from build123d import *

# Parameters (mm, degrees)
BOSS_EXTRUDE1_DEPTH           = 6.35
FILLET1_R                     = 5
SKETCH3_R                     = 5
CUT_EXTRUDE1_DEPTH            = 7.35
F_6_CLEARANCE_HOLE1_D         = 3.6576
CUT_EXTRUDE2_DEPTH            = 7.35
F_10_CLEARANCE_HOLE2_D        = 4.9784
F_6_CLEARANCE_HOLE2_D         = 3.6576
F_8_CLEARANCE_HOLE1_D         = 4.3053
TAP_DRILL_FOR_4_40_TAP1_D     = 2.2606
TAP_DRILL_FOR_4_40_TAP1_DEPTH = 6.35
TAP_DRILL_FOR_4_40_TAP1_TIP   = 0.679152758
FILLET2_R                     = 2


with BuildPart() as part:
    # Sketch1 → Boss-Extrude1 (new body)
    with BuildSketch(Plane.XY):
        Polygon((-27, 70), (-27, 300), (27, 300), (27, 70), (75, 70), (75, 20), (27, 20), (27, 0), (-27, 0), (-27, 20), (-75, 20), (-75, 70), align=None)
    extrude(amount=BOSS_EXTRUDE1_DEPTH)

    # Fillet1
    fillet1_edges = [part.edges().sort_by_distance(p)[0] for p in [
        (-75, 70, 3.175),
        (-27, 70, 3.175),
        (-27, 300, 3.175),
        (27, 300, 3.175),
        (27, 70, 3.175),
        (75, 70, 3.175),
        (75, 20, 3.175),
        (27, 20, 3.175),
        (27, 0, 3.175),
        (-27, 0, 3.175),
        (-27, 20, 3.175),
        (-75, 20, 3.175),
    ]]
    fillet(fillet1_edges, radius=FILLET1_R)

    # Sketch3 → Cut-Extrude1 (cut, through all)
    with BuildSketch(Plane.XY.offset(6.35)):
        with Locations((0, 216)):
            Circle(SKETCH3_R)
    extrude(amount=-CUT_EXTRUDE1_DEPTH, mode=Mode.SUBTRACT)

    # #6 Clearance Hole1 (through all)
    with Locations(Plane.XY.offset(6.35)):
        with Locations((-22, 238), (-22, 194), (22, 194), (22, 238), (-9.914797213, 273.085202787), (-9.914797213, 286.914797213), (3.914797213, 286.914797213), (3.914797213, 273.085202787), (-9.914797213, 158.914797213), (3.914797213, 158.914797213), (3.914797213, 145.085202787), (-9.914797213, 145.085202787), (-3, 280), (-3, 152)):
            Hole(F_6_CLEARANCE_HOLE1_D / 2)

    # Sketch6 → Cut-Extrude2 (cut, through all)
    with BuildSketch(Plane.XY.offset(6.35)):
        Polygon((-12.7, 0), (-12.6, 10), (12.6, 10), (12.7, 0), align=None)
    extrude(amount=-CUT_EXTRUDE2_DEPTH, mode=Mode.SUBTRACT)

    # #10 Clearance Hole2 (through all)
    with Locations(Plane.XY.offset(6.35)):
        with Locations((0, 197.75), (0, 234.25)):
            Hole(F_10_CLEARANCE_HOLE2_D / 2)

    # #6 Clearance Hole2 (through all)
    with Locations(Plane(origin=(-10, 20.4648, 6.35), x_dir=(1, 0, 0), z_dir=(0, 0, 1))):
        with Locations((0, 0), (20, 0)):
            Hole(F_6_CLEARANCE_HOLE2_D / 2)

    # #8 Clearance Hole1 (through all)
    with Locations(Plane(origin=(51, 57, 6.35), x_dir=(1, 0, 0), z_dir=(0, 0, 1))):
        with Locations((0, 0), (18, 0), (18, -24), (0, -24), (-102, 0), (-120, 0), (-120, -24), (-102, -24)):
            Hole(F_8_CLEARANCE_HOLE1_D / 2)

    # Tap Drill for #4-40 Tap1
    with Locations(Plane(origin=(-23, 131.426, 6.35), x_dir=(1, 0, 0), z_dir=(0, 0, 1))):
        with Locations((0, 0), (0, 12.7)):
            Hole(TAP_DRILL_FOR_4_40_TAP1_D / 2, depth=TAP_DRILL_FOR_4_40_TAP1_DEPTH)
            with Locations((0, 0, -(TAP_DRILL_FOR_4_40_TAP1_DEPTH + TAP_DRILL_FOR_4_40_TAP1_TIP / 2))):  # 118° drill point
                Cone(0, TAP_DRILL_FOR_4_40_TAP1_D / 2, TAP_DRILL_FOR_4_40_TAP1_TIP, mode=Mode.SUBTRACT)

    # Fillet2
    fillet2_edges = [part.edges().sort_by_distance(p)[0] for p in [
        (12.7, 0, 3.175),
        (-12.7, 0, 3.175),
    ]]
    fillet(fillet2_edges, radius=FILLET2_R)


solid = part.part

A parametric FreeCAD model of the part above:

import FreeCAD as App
import Part
import Sketcher

V = App.Vector


def edges_at(feature, points):
    """Names of the edges that pass closest to the given points."""
    edges = feature.Shape.Edges
    near = lambda p: min(range(len(edges)), key=lambda i: edges[i].distToShape(Part.Vertex(*p))[0])
    return sorted({f"Edge{near(p) + 1}" for p in points})


def add_polygon(sketch, points):
    """Adds a closed chain of lines whose ends are joined by coincident constraints."""
    first, n = sketch.GeometryCount, len(points)
    for a, b in zip(points, points[1:] + points[:1]):
        sketch.addGeometry(Part.LineSegment(App.Vector(*a, 0), App.Vector(*b, 0)), False)
    for i in range(n):
        sketch.addConstraint(Sketcher.Constraint("Coincident", first + i, 2, first + (i + 1) % n, 1))

doc = App.newDocument("Part")
body = doc.addObject("PartDesign::Body", "Body")

sketch1 = doc.addObject("Sketcher::SketchObject", "Sketch")
body.addObject(sketch1)
sketch1.AttachmentSupport = (doc.XY_Plane, [""])
sketch1.MapMode = "FlatFace"
add_polygon(sketch1, [(-27, 300), (-27, 70), (-75, 70), (-75, 20), (-27, 20), (-27, 0), (27, 0), (27, 20), (75, 20), (75, 70), (27, 70), (27, 300)])
sketch1.addConstraint(Sketcher.Constraint("Vertical", 0))
sketch1.addConstraint(Sketcher.Constraint("Horizontal", 1))
sketch1.addConstraint(Sketcher.Constraint("Vertical", 2))
sketch1.addConstraint(Sketcher.Constraint("Horizontal", 3))
sketch1.addConstraint(Sketcher.Constraint("Vertical", 4))
sketch1.addConstraint(Sketcher.Constraint("Horizontal", 5))
sketch1.addConstraint(Sketcher.Constraint("Vertical", 6))
sketch1.addConstraint(Sketcher.Constraint("Horizontal", 7))
sketch1.addConstraint(Sketcher.Constraint("Vertical", 8))
sketch1.addConstraint(Sketcher.Constraint("Horizontal", 9))
sketch1.addConstraint(Sketcher.Constraint("Vertical", 10))
sketch1.addConstraint(Sketcher.Constraint("Horizontal", 11))
sketch1.addConstraint(Sketcher.Constraint("Symmetric", 4, 2, 5, 2, -1, 1))
sketch1.addConstraint(Sketcher.Constraint("Symmetric", 2, 2, 7, 2, -2))
sketch1.addConstraint(Sketcher.Constraint("Symmetric", 0, 2, 9, 2, -2))
sketch1.addConstraint(Sketcher.Constraint("Vertical", 0, 2, 3, 2))
sketch1.addConstraint(Sketcher.Constraint("DistanceX", 1, 2, 1, 1, 48.0))
sketch1.addConstraint(Sketcher.Constraint("DistanceX", 5, 1, 5, 2, 54.0))
sketch1.addConstraint(Sketcher.Constraint("DistanceY", 0, 2, 0, 1, 230.0))
sketch1.addConstraint(Sketcher.Constraint("DistanceY", 2, 2, 2, 1, 50.0))
sketch1.addConstraint(Sketcher.Constraint("DistanceY", 4, 2, 4, 1, 20.0))
pad1 = doc.addObject("PartDesign::Pad", "Pad")
body.addObject(pad1)
pad1.Profile = sketch1
pad1.Length = 6.35
doc.recompute()

fillet = doc.addObject("PartDesign::Fillet", "Fillet")
body.addObject(fillet)
fillet.Base = (pad1, edges_at(pad1, [
    (-75, 70, 3.175),
    (-27, 70, 3.175),
    (-27, 300, 3.175),
    (27, 300, 3.175),
    (27, 70, 3.175),
    (75, 70, 3.175),
    (75, 20, 3.175),
    (27, 20, 3.175),
    (27, 0, 3.175),
    (-27, 0, 3.175),
    (-27, 20, 3.175),
    (-75, 20, 3.175),
]))
fillet.Radius = 5

sketch2 = doc.addObject("Sketcher::SketchObject", "Sketch001")
body.addObject(sketch2)
sketch2.AttachmentSupport = (doc.XY_Plane, [""])
sketch2.MapMode = "FlatFace"
sketch2.AttachmentOffset = App.Placement(V(0, 0, 6.35), App.Rotation())
sketch2.addGeometry(Part.Circle(V(0, 216, 0), V(0, 0, 1), 5), False)
sketch2.addConstraint(Sketcher.Constraint("PointOnObject", 0, 3, -2))
sketch2.addConstraint(Sketcher.Constraint("Diameter", 0, 10.0))
sketch2.addConstraint(Sketcher.Constraint("DistanceY", -1, 1, 0, 3, 216.0))
pocket1 = doc.addObject("PartDesign::Pocket", "Pocket")
body.addObject(pocket1)
pocket1.Profile = sketch2
pocket1.Type = "ThroughAll"

sketch3 = doc.addObject("Sketcher::SketchObject", "Sketch002")
body.addObject(sketch3)
sketch3.AttachmentSupport = (doc.XY_Plane, [""])
sketch3.MapMode = "FlatFace"
sketch3.AttachmentOffset = App.Placement(V(0, 0, 6.35), App.Rotation())
sketch3.addGeometry(Part.Circle(V(-22, 238, 0), V(0, 0, 1), 1.8), False)
sketch3.addGeometry(Part.Circle(V(-22, 194, 0), V(0, 0, 1), 1.8), False)
sketch3.addGeometry(Part.Circle(V(22, 194, 0), V(0, 0, 1), 1.8), False)
sketch3.addGeometry(Part.Circle(V(22, 238, 0), V(0, 0, 1), 1.8), False)
sketch3.addGeometry(Part.Circle(V(-9.9, 273.1, 0), V(0, 0, 1), 1.8), False)
sketch3.addGeometry(Part.Circle(V(-9.9, 286.9, 0), V(0, 0, 1), 1.8), False)
sketch3.addGeometry(Part.Circle(V(3.9, 286.9, 0), V(0, 0, 1), 1.8), False)
sketch3.addGeometry(Part.Circle(V(3.9, 273.1, 0), V(0, 0, 1), 1.8), False)
sketch3.addGeometry(Part.Circle(V(-9.9, 158.9, 0), V(0, 0, 1), 1.8), False)
sketch3.addGeometry(Part.Circle(V(3.9, 158.9, 0), V(0, 0, 1), 1.8), False)
sketch3.addGeometry(Part.Circle(V(3.9, 145.1, 0), V(0, 0, 1), 1.8), False)
sketch3.addGeometry(Part.Circle(V(-9.9, 145.1, 0), V(0, 0, 1), 1.8), False)
sketch3.addGeometry(Part.Circle(V(-3, 280, 0), V(0, 0, 1), 1.8), False)
sketch3.addGeometry(Part.Circle(V(-3, 152, 0), V(0, 0, 1), 1.8), False)
sketch3.addConstraint(Sketcher.Constraint("Equal", 0, 1))
sketch3.addConstraint(Sketcher.Constraint("Equal", 1, 2))
sketch3.addConstraint(Sketcher.Constraint("Equal", 2, 3))
sketch3.addConstraint(Sketcher.Constraint("Equal", 3, 4))
sketch3.addConstraint(Sketcher.Constraint("Equal", 4, 5))
sketch3.addConstraint(Sketcher.Constraint("Equal", 5, 6))
sketch3.addConstraint(Sketcher.Constraint("Equal", 6, 7))
sketch3.addConstraint(Sketcher.Constraint("Equal", 7, 8))
sketch3.addConstraint(Sketcher.Constraint("Equal", 8, 9))
sketch3.addConstraint(Sketcher.Constraint("Equal", 9, 10))
sketch3.addConstraint(Sketcher.Constraint("Equal", 10, 11))
sketch3.addConstraint(Sketcher.Constraint("Equal", 11, 12))
sketch3.addConstraint(Sketcher.Constraint("Equal", 12, 13))
sketch3.addConstraint(Sketcher.Constraint("Symmetric", 1, 3, 2, 3, -2))
sketch3.addConstraint(Sketcher.Constraint("Symmetric", 0, 3, 3, 3, -2))
sketch3.addConstraint(Sketcher.Constraint("Horizontal", 5, 3, 6, 3))
sketch3.addConstraint(Sketcher.Constraint("Horizontal", 4, 3, 7, 3))
sketch3.addConstraint(Sketcher.Constraint("Horizontal", 8, 3, 9, 3))
sketch3.addConstraint(Sketcher.Constraint("Horizontal", 10, 3, 11, 3))
sketch3.addConstraint(Sketcher.Constraint("Vertical", 0, 3, 1, 3))
sketch3.addConstraint(Sketcher.Constraint("Vertical", 4, 3, 5, 3))
sketch3.addConstraint(Sketcher.Constraint("Vertical", 6, 3, 7, 3))
sketch3.addConstraint(Sketcher.Constraint("Vertical", 5, 3, 8, 3))
sketch3.addConstraint(Sketcher.Constraint("Vertical", 7, 3, 9, 3))
sketch3.addConstraint(Sketcher.Constraint("Vertical", 9, 3, 10, 3))
sketch3.addConstraint(Sketcher.Constraint("Vertical", 8, 3, 11, 3))
sketch3.addConstraint(Sketcher.Constraint("Vertical", 12, 3, 13, 3))
sketch3.addConstraint(Sketcher.Constraint("DistanceX", 0, 3, -1, 1, 22.0))
sketch3.addConstraint(Sketcher.Constraint("DistanceY", -1, 1, 0, 3, 238.0))
sketch3.addConstraint(Sketcher.Constraint("DistanceY", -1, 1, 1, 3, 194.0))
sketch3.addConstraint(Sketcher.Constraint("DistanceX", 12, 3, -1, 1, 3.0))
sketch3.addConstraint(Sketcher.Constraint("DistanceY", -1, 1, 12, 3, 280.0))
sketch3.addConstraint(Sketcher.Constraint("DistanceY", -1, 1, 13, 3, 152.0))
sketch3.addConstraint(Sketcher.Constraint("Diameter", 0, 3.6576))
sketch3.addConstraint(Sketcher.Constraint("DistanceX", 4, 3, -1, 1, 9.914797))
sketch3.addConstraint(Sketcher.Constraint("DistanceY", -1, 1, 4, 3, 273.085203))
sketch3.addConstraint(Sketcher.Constraint("DistanceY", -1, 1, 5, 3, 286.914797))
sketch3.addConstraint(Sketcher.Constraint("DistanceX", -1, 1, 6, 3, 3.914797))
sketch3.addConstraint(Sketcher.Constraint("DistanceY", -1, 1, 8, 3, 158.914797))
sketch3.addConstraint(Sketcher.Constraint("DistanceY", -1, 1, 10, 3, 145.085203))
doc.recompute()
hole = doc.addObject("PartDesign::Hole", "Hole")
body.addObject(hole)
hole.Profile = sketch3
hole.ThreadType = "None"
hole.Diameter = 3.6576
hole.DepthType = "ThroughAll"

sketch4 = doc.addObject("Sketcher::SketchObject", "Sketch003")
body.addObject(sketch4)
sketch4.AttachmentSupport = (doc.XY_Plane, [""])
sketch4.MapMode = "FlatFace"
sketch4.AttachmentOffset = App.Placement(V(0, 0, 6.35), App.Rotation())
add_polygon(sketch4, [(-13, 10), (-13, 0), (13, 0), (13, 10)])
sketch4.addConstraint(Sketcher.Constraint("Horizontal", 1))
sketch4.addConstraint(Sketcher.Constraint("Horizontal", 3))
sketch4.addConstraint(Sketcher.Constraint("Symmetric", 0, 2, 1, 2, -1, 1))
sketch4.addConstraint(Sketcher.Constraint("Equal", 0, 2))
sketch4.addConstraint(Sketcher.Constraint("DistanceX", 1, 1, 1, 2, 25.4))
sketch4.addConstraint(Sketcher.Constraint("DistanceX", 3, 2, 3, 1, 25.2))
sketch4.addConstraint(Sketcher.Constraint("DistanceY", -1, 1, 2, 2, 10.0))
pocket2 = doc.addObject("PartDesign::Pocket", "Pocket001")
body.addObject(pocket2)
pocket2.Profile = sketch4
pocket2.Type = "ThroughAll"

sketch5 = doc.addObject("Sketcher::SketchObject", "Sketch004")
body.addObject(sketch5)
sketch5.AttachmentSupport = (doc.XY_Plane, [""])
sketch5.MapMode = "FlatFace"
sketch5.AttachmentOffset = App.Placement(V(0, 0, 6.35), App.Rotation())
sketch5.addGeometry(Part.Circle(V(0, 197.8, 0), V(0, 0, 1), 2.5), False)
sketch5.addGeometry(Part.Circle(V(0, 234.2, 0), V(0, 0, 1), 2.5), False)
sketch5.addConstraint(Sketcher.Constraint("Equal", 0, 1))
sketch5.addConstraint(Sketcher.Constraint("PointOnObject", 0, 3, -2))
sketch5.addConstraint(Sketcher.Constraint("PointOnObject", 1, 3, -2))
sketch5.addConstraint(Sketcher.Constraint("Diameter", 0, 4.9784))
sketch5.addConstraint(Sketcher.Constraint("DistanceY", 0, 3, 1, 3, 36.5))
sketch5.addConstraint(Sketcher.Constraint("DistanceY", -1, 1, 0, 3, 197.75))
doc.recompute()
hole2 = doc.addObject("PartDesign::Hole", "Hole001")
body.addObject(hole2)
hole2.Profile = sketch5
hole2.ThreadType = "None"
hole2.Diameter = 4.9784
hole2.DepthType = "ThroughAll"

sketch6 = doc.addObject("Sketcher::SketchObject", "Sketch005")
body.addObject(sketch6)
sketch6.AttachmentSupport = (doc.XY_Plane, [""])
sketch6.MapMode = "FlatFace"
sketch6.AttachmentOffset = App.Placement(V(0, 0, 6.35), App.Rotation())
sketch6.addGeometry(Part.Circle(V(-10, 20.5, 0), V(0, 0, 1), 1.8), False)
sketch6.addGeometry(Part.Circle(V(10, 20.5, 0), V(0, 0, 1), 1.8), False)
sketch6.addConstraint(Sketcher.Constraint("Equal", 0, 1))
sketch6.addConstraint(Sketcher.Constraint("Symmetric", 0, 3, 1, 3, -2))
sketch6.addConstraint(Sketcher.Constraint("DistanceX", 0, 3, -1, 1, 10.0))
sketch6.addConstraint(Sketcher.Constraint("Diameter", 0, 3.6576))
sketch6.addConstraint(Sketcher.Constraint("DistanceY", -1, 1, 0, 3, 20.4648))
doc.recompute()
hole3 = doc.addObject("PartDesign::Hole", "Hole002")
body.addObject(hole3)
hole3.Profile = sketch6
hole3.ThreadType = "None"
hole3.Diameter = 3.6576
hole3.DepthType = "ThroughAll"

sketch7 = doc.addObject("Sketcher::SketchObject", "Sketch006")
body.addObject(sketch7)
sketch7.AttachmentSupport = (doc.XY_Plane, [""])
sketch7.MapMode = "FlatFace"
sketch7.AttachmentOffset = App.Placement(V(0, 0, 6.35), App.Rotation())
sketch7.addGeometry(Part.Circle(V(51, 57, 0), V(0, 0, 1), 2.2), False)
sketch7.addGeometry(Part.Circle(V(69, 57, 0), V(0, 0, 1), 2.2), False)
sketch7.addGeometry(Part.Circle(V(69, 33, 0), V(0, 0, 1), 2.2), False)
sketch7.addGeometry(Part.Circle(V(51, 33, 0), V(0, 0, 1), 2.2), False)
sketch7.addGeometry(Part.Circle(V(-51, 57, 0), V(0, 0, 1), 2.2), False)
sketch7.addGeometry(Part.Circle(V(-69, 57, 0), V(0, 0, 1), 2.2), False)
sketch7.addGeometry(Part.Circle(V(-69, 33, 0), V(0, 0, 1), 2.2), False)
sketch7.addGeometry(Part.Circle(V(-51, 33, 0), V(0, 0, 1), 2.2), False)
sketch7.addConstraint(Sketcher.Constraint("Equal", 0, 1))
sketch7.addConstraint(Sketcher.Constraint("Equal", 1, 2))
sketch7.addConstraint(Sketcher.Constraint("Equal", 2, 3))
sketch7.addConstraint(Sketcher.Constraint("Equal", 3, 4))
sketch7.addConstraint(Sketcher.Constraint("Equal", 4, 5))
sketch7.addConstraint(Sketcher.Constraint("Equal", 5, 6))
sketch7.addConstraint(Sketcher.Constraint("Equal", 6, 7))
sketch7.addConstraint(Sketcher.Constraint("Symmetric", 0, 3, 4, 3, -2))
sketch7.addConstraint(Sketcher.Constraint("Symmetric", 1, 3, 5, 3, -2))
sketch7.addConstraint(Sketcher.Constraint("Symmetric", 2, 3, 6, 3, -2))
sketch7.addConstraint(Sketcher.Constraint("Symmetric", 3, 3, 7, 3, -2))
sketch7.addConstraint(Sketcher.Constraint("Horizontal", 0, 3, 1, 3))
sketch7.addConstraint(Sketcher.Constraint("Horizontal", 2, 3, 3, 3))
sketch7.addConstraint(Sketcher.Constraint("Vertical", 1, 3, 2, 3))
sketch7.addConstraint(Sketcher.Constraint("Vertical", 0, 3, 3, 3))
sketch7.addConstraint(Sketcher.Constraint("DistanceX", -1, 1, 0, 3, 51.0))
sketch7.addConstraint(Sketcher.Constraint("DistanceY", -1, 1, 0, 3, 57.0))
sketch7.addConstraint(Sketcher.Constraint("DistanceX", -1, 1, 1, 3, 69.0))
sketch7.addConstraint(Sketcher.Constraint("DistanceY", -1, 1, 2, 3, 33.0))
sketch7.addConstraint(Sketcher.Constraint("Diameter", 0, 4.3053))
doc.recompute()
hole4 = doc.addObject("PartDesign::Hole", "Hole003")
body.addObject(hole4)
hole4.Profile = sketch7
hole4.ThreadType = "None"
hole4.Diameter = 4.3053
hole4.DepthType = "ThroughAll"

sketch8 = doc.addObject("Sketcher::SketchObject", "Sketch007")
body.addObject(sketch8)
sketch8.AttachmentSupport = (doc.XY_Plane, [""])
sketch8.MapMode = "FlatFace"
sketch8.AttachmentOffset = App.Placement(V(0, 0, 6.35), App.Rotation())
sketch8.addGeometry(Part.Circle(V(-23, 131.4, 0), V(0, 0, 1), 1.1), False)
sketch8.addGeometry(Part.Circle(V(-23, 144.1, 0), V(0, 0, 1), 1.1), False)
sketch8.addConstraint(Sketcher.Constraint("Equal", 0, 1))
sketch8.addConstraint(Sketcher.Constraint("Vertical", 0, 3, 1, 3))
sketch8.addConstraint(Sketcher.Constraint("DistanceX", 0, 3, -1, 1, 23.0))
sketch8.addConstraint(Sketcher.Constraint("Diameter", 0, 2.2606))
sketch8.addConstraint(Sketcher.Constraint("DistanceY", 0, 3, 1, 3, 12.7))
sketch8.addConstraint(Sketcher.Constraint("DistanceY", -1, 1, 0, 3, 131.426))
doc.recompute()
hole5 = doc.addObject("PartDesign::Hole", "Hole004")
body.addObject(hole5)
hole5.Profile = sketch8
hole5.ThreadType = "None"
hole5.Diameter = 2.2606
hole5.DepthType = "Dimension"
hole5.Depth = 6.35
hole5.DrillPoint = "Angled"
hole5.DrillPointAngle = 118
doc.recompute()

fillet2 = doc.addObject("PartDesign::Fillet", "Fillet001")
body.addObject(fillet2)
fillet2.Base = (hole5, edges_at(hole5, [(12.7, 0, 3.175), (-12.7, 0, 3.175)]))
fillet2.Radius = 2

doc.recompute()
